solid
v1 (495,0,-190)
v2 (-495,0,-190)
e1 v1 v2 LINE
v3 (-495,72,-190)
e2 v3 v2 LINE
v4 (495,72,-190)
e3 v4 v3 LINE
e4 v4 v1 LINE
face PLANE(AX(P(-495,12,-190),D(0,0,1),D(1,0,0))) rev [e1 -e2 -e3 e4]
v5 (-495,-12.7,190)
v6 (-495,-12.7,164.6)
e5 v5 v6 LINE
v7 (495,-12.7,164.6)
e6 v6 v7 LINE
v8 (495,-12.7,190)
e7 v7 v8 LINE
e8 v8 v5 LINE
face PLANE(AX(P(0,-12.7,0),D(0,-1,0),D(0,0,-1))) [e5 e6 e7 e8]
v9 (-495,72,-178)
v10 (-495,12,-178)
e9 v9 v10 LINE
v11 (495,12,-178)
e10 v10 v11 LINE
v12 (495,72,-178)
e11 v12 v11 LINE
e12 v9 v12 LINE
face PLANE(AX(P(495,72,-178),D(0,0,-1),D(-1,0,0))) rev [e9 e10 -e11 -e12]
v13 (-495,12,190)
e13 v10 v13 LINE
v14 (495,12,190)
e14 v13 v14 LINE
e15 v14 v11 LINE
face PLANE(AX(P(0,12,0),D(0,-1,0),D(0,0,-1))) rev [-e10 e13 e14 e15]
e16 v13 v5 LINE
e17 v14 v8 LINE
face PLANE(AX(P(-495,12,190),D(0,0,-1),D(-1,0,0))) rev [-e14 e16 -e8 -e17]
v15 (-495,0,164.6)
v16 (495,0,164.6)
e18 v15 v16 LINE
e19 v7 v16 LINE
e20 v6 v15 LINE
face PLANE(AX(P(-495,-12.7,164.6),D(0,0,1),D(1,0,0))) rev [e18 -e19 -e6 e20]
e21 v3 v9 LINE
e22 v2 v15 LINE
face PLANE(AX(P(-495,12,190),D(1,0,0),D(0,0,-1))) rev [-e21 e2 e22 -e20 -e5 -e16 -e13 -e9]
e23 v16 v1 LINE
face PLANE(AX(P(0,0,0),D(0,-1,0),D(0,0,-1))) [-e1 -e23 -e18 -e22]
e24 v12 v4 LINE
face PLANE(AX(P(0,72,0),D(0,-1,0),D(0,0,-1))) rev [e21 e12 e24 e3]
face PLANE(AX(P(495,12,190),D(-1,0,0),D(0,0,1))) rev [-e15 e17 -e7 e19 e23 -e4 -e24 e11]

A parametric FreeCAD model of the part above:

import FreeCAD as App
import Part
import Sketcher
Q = App.Units.Quantity


def add_polygon(sketch, points):
    """Adds a closed chain of lines whose ends are joined by coincident constraints."""
    first, n = sketch.GeometryCount, len(points)
    for a, b in zip(points, points[1:] + points[:1]):
        sketch.addGeometry(Part.LineSegment(App.Vector(*a, 0), App.Vector(*b, 0)), False)
    for i in range(n):
        sketch.addConstraint(Sketcher.Constraint("Coincident", first + i, 2, first + (i + 1) % n, 1))

doc = App.newDocument("Part")
body = doc.addObject("PartDesign::Body", "Body")

sketch1 = body.newObject("Sketcher::SketchObject", "Sketch")
sketch1.AttachmentSupport = (doc.getObject("XZ_Plane"), [""])
sketch1.MapMode = "FlatFace"
add_polygon(sketch1, [(-495, -190), (-495, 190), (495, 190), (495, -190)])
sketch1.addConstraint([
    Sketcher.Constraint("Vertical", 0),
    Sketcher.Constraint("Horizontal", 1),
    Sketcher.Constraint("Vertical", 2),
    Sketcher.Constraint("Horizontal", 3),
    Sketcher.Constraint("Symmetric", 0, 2, 2, 2, -1, 1),
    Sketcher.Constraint("DistanceX", 1, 1, 1, 2, Q("990 mm")),
    Sketcher.Constraint("DistanceY", 0, 1, 0, 2, Q("380 mm")),
])
pad1 = body.newObject("PartDesign::Pad", "Pad")
pad1.Profile = sketch1
pad1.Length = 12
pad1.Reversed = True

sketch2 = body.newObject("Sketcher::SketchObject", "Sketch001")
sketch2.AttachmentSupport = (doc.getObject("XZ_Plane"), [""])
sketch2.MapMode = "FlatFace"
add_polygon(sketch2, [(-495, 190), (-495, 165), (495, 165), (495, 190)])
sketch2.addConstraint([
    Sketcher.Constraint("Vertical", 0),
    Sketcher.Constraint("Horizontal", 1),
    Sketcher.Constraint("Vertical", 2),
    Sketcher.Constraint("Horizontal", 3),
    Sketcher.Constraint("DistanceX", 1, 1, 1, 2, Q("990 mm")),
    Sketcher.Constraint("DistanceY", 0, 2, 0, 1, Q("25.4 mm")),
    Sketcher.Constraint("DistanceX", 0, 2, -1, 1, Q("495 mm")),
    Sketcher.Constraint("DistanceY", -1, 1, 2, 2, Q("190 mm")),
])
pad2 = body.newObject("PartDesign::Pad", "Pad001")
pad2.Profile = sketch2
pad2.Length = 12.7

sketch3 = body.newObject("Sketcher::SketchObject", "Sketch002")
sketch3.AttachmentSupport = (doc.getObject("XZ_Plane"), [""])
sketch3.MapMode = "FlatFace"
sketch3.AttachmentOffset = App.Placement(App.Vector(0, 0, -12), App.Rotation())
add_polygon(sketch3, [(-495, -190), (-495, -178), (495, -178), (495, -190)])
sketch3.addConstraint([
    Sketcher.Constraint("Vertical", 0),
    Sketcher.Constraint("Horizontal", 1),
    Sketcher.Constraint("Vertical", 2),
    Sketcher.Constraint("Horizontal", 3),
    Sketcher.Constraint("DistanceX", 1, 1, 1, 2, Q("990 mm")),
    Sketcher.Constraint("DistanceY", 0, 1, 0, 2, Q("12 mm")),
    Sketcher.Constraint("DistanceX", 0, 2, -1, 1, Q("495 mm")),
    Sketcher.Constraint("DistanceY", 0, 2, -1, 1, Q("178 mm")),
])
pad3 = body.newObject("PartDesign::Pad", "Pad002")
pad3.Profile = sketch3
pad3.Length = 60
pad3.Reversed = True

doc.recompute()
